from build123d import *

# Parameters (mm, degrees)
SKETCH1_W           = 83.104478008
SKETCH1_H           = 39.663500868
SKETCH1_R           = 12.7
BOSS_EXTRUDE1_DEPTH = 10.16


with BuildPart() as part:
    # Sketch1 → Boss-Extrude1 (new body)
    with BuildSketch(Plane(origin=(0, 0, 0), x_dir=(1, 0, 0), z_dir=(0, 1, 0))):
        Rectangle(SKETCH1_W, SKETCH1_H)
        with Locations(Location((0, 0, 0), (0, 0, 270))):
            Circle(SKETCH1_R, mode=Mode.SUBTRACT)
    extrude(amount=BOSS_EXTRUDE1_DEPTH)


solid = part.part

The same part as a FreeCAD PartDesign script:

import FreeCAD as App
import Part
import Sketcher
from FreeCAD import Vector
Q = App.Units.Quantity

doc = App.newDocument("Part")
params = doc.addObject("Spreadsheet::Sheet", "Params")
for row, (alias, value) in enumerate([
    ("sketch1_diameter", "1 in"),
    ("pad1_length", "0.4 in"),
], start=1):
    params.set(f"A{row}", alias)
    params.set(f"B{row}", "=" + value)
    params.setAlias(f"B{row}", alias)

body = doc.addObject("PartDesign::Body", "Body")

# Sketch on XZ plane
sketch1 = body.newObject("Sketcher::SketchObject", "Sketch")
sketch1.AttachmentSupport = (doc.getObject("XZ_Plane"), [""])
sketch1.MapMode = "FlatFace"
sketch1.addGeometry(Part.LineSegment(Vector(-42, -20, 0), Vector(-42, 20, 0)), False)
sketch1.addGeometry(Part.LineSegment(Vector(-42, 20, 0), Vector(42, 20, 0)), False)
sketch1.addGeometry(Part.LineSegment(Vector(42, 20, 0), Vector(42, -20, 0)), False)
sketch1.addGeometry(Part.LineSegment(Vector(42, -20, 0), Vector(-42, -20, 0)), False)
sketch1.addGeometry(Part.Circle(Vector(0, 0, 0), Vector(0, 0, 1), 13), False)
sketch1.addConstraint(Sketcher.Constraint("Coincident", 0, 2, 1, 1))
sketch1.addConstraint(Sketcher.Constraint("Coincident", 1, 2, 2, 1))
sketch1.addConstraint(Sketcher.Constraint("Coincident", 2, 2, 3, 1))
sketch1.addConstraint(Sketcher.Constraint("Coincident", 3, 2, 0, 1))
sketch1.addConstraint(Sketcher.Constraint("Vertical", 0))
sketch1.addConstraint(Sketcher.Constraint("Horizontal", 1))
sketch1.addConstraint(Sketcher.Constraint("Vertical", 2))
sketch1.addConstraint(Sketcher.Constraint("Horizontal", 3))
sketch1.addConstraint(Sketcher.Constraint("Coincident", 4, 3, -1, 1))
sketch1.addConstraint(Sketcher.Constraint("Symmetric", 0, 2, 2, 2, -1, 1))
sketch1.addConstraint(Sketcher.Constraint("Diameter", 4, Q("1 in")))
sketch1.addConstraint(Sketcher.Constraint("DistanceY", 0, 1, 0, 2, Q("39.663501 mm")))
sketch1.addConstraint(Sketcher.Constraint("DistanceX", 1, 1, 1, 2, Q("83.104478 mm")))
sketch1.setExpression("Constraints[10]", "Params.sketch1_diameter")
pad1 = body.newObject("PartDesign::Pad", "Pad")
pad1.Profile = sketch1
pad1.setExpression("Length", "Params.pad1_length")
pad1.Reversed = True

doc.recompute()
